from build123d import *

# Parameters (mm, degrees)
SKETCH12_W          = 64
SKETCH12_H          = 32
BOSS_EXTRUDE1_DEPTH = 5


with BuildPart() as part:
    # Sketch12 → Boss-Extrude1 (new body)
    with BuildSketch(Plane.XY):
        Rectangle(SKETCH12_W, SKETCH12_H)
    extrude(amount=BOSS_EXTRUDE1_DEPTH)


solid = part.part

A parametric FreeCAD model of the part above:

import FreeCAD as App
import Part
import Sketcher
from FreeCAD import Vector


def add_polygon(sketch, points):
    """Adds a closed chain of lines whose ends are joined by coincident constraints."""
    first, n = sketch.GeometryCount, len(points)
    for a, b in zip(points, points[1:] + points[:1]):
        sketch.addGeometry(Part.LineSegment(App.Vector(*a, 0), App.Vector(*b, 0)), False)
    for i in range(n):
        sketch.addConstraint(Sketcher.Constraint("Coincident", first + i, 2, first + (i + 1) % n, 1))

doc = App.newDocument("Part")
body = doc.addObject("PartDesign::Body", "Body")

sketch1 = doc.addObject("Sketcher::SketchObject", "Sketch")
body.addObject(sketch1)
sketch1.AttachmentSupport = (doc.XY_Plane, [""])
sketch1.MapMode = "FlatFace"
add_polygon(sketch1, [(-32, 16), (-32, -16), (32, -16), (32, 16)])
sketch1.addConstraint(Sketcher.Constraint("Vertical", 0))
sketch1.addConstraint(Sketcher.Constraint("Horizontal", 1))
sketch1.addConstraint(Sketcher.Constraint("Vertical", 2))
sketch1.addConstraint(Sketcher.Constraint("Horizontal", 3))
sketch1.addConstraint(Sketcher.Constraint("Symmetric", 0, 2, 2, 2, -1, 1))
sketch1.addConstraint(Sketcher.Constraint("DistanceX", 1, 1, 1, 2, 64.0))
sketch1.addConstraint(Sketcher.Constraint("DistanceY", 0, 2, 0, 1, 32.0))
pad1 = doc.addObject("PartDesign::Pad", "Pad")
body.addObject(pad1)
pad1.Profile = sketch1
pad1.Length = 5

doc.recompute()
